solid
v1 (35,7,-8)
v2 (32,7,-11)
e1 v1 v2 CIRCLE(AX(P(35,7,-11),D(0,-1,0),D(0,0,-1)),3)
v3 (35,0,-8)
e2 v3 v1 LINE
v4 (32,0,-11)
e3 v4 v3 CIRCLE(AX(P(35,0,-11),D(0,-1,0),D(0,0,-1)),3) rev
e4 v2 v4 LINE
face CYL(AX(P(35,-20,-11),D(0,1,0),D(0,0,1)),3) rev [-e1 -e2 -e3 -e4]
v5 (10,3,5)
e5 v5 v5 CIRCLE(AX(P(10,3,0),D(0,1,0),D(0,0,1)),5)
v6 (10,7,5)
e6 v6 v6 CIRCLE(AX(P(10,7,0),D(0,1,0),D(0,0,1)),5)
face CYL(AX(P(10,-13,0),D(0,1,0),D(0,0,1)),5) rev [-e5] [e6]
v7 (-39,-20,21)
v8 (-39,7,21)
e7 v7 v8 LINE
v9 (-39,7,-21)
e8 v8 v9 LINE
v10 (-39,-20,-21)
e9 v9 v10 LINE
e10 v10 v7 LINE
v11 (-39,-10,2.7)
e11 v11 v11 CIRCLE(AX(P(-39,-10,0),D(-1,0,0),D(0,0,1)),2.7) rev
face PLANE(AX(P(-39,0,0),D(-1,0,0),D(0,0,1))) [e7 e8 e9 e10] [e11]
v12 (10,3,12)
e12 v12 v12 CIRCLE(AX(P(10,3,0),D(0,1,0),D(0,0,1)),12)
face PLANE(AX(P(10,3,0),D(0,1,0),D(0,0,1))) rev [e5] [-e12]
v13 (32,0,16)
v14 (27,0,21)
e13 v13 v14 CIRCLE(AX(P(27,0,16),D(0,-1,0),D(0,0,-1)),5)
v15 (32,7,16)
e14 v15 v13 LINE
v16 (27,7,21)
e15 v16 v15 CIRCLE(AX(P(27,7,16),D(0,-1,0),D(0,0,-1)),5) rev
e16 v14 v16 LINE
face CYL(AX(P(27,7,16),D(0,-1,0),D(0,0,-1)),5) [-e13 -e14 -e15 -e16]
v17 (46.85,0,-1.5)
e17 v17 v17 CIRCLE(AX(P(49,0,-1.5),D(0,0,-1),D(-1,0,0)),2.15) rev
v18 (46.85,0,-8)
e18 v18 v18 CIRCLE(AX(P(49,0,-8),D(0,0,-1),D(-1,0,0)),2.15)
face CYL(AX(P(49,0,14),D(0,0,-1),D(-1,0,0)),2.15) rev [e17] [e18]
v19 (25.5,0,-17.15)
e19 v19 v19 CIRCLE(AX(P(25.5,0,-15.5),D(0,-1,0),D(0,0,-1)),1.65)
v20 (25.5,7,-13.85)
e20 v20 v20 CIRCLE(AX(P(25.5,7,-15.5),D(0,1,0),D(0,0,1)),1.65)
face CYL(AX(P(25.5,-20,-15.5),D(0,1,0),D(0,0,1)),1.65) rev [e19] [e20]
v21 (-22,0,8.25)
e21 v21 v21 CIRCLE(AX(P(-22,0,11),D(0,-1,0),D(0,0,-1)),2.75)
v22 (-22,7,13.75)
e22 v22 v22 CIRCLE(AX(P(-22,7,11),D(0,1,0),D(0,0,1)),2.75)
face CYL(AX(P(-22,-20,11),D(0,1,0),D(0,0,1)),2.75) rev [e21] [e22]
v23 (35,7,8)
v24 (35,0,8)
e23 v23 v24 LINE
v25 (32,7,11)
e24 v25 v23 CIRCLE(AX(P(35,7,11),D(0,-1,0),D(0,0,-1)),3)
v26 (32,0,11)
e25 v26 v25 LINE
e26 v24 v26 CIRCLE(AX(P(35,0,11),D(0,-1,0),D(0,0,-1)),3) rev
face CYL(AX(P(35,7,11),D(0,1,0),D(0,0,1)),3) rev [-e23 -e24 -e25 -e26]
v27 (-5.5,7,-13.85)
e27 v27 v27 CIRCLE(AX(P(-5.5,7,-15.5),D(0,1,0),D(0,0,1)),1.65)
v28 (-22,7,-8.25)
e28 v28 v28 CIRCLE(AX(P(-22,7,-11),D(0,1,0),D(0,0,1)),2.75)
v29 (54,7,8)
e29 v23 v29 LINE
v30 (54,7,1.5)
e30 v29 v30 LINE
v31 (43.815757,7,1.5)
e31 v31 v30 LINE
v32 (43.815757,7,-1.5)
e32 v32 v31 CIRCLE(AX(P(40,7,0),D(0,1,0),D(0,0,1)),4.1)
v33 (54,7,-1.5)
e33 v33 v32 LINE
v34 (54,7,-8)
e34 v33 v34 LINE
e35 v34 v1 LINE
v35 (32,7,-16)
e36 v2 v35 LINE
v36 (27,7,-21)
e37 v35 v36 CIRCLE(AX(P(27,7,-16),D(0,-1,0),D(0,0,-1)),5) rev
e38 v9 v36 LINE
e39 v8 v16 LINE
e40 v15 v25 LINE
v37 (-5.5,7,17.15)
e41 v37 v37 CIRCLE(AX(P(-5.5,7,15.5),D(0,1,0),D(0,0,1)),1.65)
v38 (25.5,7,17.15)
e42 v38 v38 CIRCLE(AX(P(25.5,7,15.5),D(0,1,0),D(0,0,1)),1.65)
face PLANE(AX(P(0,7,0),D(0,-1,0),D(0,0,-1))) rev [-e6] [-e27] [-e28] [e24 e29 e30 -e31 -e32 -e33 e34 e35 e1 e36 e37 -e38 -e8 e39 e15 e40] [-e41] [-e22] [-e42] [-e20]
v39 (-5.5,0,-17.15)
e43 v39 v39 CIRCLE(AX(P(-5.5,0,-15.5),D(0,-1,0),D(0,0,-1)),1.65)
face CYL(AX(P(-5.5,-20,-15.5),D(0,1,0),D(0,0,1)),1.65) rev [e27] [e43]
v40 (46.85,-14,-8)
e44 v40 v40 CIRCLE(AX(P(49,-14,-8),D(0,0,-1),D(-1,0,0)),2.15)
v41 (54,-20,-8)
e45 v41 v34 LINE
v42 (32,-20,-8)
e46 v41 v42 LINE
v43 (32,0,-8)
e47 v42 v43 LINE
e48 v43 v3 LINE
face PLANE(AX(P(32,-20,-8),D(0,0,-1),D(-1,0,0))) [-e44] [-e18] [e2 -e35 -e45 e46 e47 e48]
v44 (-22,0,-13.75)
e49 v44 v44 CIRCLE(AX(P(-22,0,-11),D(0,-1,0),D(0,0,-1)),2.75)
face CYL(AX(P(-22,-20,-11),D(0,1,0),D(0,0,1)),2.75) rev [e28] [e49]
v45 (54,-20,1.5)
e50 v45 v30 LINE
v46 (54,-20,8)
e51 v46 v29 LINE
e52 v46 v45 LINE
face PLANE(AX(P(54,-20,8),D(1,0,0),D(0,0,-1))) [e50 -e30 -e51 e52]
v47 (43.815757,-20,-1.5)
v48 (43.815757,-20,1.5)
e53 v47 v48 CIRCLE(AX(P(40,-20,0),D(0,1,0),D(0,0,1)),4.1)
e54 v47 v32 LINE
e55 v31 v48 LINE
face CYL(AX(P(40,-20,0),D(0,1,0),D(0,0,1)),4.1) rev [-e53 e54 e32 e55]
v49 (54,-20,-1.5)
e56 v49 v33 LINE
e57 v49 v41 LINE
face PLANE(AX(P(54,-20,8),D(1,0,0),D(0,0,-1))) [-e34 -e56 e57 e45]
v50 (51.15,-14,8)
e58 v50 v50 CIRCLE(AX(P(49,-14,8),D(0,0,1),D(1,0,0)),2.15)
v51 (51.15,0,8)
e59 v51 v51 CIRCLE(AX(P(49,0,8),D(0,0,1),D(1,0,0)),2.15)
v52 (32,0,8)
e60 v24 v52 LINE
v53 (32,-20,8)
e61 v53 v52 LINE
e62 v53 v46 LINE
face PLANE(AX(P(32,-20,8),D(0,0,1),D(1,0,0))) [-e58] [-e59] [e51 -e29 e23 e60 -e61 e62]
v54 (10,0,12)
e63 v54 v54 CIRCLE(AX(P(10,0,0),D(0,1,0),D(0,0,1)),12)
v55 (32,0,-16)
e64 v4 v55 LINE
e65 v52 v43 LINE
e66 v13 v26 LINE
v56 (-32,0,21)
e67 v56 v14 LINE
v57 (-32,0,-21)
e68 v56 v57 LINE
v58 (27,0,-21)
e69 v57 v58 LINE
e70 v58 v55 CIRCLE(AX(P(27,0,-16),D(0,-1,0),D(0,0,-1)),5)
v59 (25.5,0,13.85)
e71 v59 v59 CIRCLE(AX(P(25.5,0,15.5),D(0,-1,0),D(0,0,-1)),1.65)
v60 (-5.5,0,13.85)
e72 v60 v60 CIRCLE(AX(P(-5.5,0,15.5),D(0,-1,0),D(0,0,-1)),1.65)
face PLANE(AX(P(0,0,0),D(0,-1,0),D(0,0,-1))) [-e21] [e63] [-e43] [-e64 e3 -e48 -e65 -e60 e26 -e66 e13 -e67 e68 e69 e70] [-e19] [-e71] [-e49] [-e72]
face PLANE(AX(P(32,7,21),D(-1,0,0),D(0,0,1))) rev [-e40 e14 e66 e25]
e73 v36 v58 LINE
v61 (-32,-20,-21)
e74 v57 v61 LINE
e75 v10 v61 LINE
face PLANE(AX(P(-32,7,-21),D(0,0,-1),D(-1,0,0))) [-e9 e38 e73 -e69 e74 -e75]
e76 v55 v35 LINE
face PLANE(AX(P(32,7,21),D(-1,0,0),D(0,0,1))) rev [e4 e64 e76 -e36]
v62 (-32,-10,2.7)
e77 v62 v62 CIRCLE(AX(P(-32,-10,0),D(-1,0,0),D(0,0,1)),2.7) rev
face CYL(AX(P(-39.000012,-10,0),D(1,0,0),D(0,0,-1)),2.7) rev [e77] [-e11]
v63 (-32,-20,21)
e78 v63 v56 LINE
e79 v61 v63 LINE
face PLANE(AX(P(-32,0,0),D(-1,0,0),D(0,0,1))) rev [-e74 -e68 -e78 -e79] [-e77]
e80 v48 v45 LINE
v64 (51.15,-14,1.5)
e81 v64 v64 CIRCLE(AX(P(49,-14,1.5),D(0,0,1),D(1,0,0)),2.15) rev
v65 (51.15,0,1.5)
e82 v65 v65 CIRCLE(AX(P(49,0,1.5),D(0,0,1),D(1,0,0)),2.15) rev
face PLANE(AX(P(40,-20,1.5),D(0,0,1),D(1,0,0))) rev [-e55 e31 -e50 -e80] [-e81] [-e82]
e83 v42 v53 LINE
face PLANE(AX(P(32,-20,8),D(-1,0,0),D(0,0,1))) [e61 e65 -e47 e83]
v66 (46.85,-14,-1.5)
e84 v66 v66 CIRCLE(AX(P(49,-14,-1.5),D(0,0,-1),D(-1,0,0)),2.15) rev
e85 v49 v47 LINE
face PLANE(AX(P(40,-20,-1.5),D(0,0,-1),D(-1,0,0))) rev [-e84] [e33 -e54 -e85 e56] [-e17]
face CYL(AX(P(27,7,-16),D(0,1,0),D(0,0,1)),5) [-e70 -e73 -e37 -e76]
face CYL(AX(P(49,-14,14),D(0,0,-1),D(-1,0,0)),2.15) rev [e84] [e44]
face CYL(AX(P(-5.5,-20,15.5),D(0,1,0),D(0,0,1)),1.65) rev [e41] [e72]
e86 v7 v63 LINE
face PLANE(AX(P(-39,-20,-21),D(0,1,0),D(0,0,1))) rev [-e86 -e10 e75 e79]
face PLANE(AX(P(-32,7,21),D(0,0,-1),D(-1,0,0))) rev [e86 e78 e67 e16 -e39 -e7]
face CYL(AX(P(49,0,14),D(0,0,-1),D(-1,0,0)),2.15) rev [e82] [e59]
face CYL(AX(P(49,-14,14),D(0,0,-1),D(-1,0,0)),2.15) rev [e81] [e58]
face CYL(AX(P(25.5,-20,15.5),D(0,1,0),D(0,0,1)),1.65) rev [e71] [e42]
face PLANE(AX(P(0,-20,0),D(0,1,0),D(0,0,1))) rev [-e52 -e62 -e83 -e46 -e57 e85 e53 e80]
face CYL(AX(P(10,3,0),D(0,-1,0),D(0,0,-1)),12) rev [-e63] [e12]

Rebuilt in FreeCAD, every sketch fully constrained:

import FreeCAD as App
import Part
import Sketcher
Q = App.Units.Quantity


def edges_at(feature, points):
    """Names of the edges that pass closest to the given points."""
    edges = feature.Shape.Edges
    near = lambda p: min(range(len(edges)), key=lambda i: edges[i].distToShape(Part.Vertex(*p))[0])
    return sorted({f"Edge{near(p) + 1}" for p in points})


def add_polygon(sketch, points):
    """Adds a closed chain of lines whose ends are joined by coincident constraints."""
    first, n = sketch.GeometryCount, len(points)
    for a, b in zip(points, points[1:] + points[:1]):
        sketch.addGeometry(Part.LineSegment(App.Vector(*a, 0), App.Vector(*b, 0)), False)
    for i in range(n):
        sketch.addConstraint(Sketcher.Constraint("Coincident", first + i, 2, first + (i + 1) % n, 1))

doc = App.newDocument("Part")
body = doc.addObject("PartDesign::Body", "Body")

# Sketch on XZ plane
sketch1 = doc.addObject("Sketcher::SketchObject", "Sketch")
body.addObject(sketch1)
sketch1.AttachmentSupport = (doc.XZ_Plane, [""])
sketch1.MapMode = "FlatFace"
add_polygon(sketch1, [(-32, -21), (-32, 21), (32, 21), (32, -21)])  # lines 0-3
sketch1.addConstraint(Sketcher.Constraint("Vertical", 0))
sketch1.addConstraint(Sketcher.Constraint("Horizontal", 1))
sketch1.addConstraint(Sketcher.Constraint("Vertical", 2))
sketch1.addConstraint(Sketcher.Constraint("Horizontal", 3))
sketch1.addConstraint(Sketcher.Constraint("Symmetric", 0, 2, 2, 2, -1, 1))
sketch1.addConstraint(Sketcher.Constraint("DistanceX", 1, 1, 1, 2, Q("64 mm")))
sketch1.addConstraint(Sketcher.Constraint("DistanceY", 0, 1, 0, 2, Q("42 mm")))
pad1 = doc.addObject("PartDesign::Pad", "Pad")
body.addObject(pad1)
pad1.Profile = sketch1
pad1.Length = 7
pad1.Reversed = True

# Sketch on XZ plane
sketch2 = doc.addObject("Sketcher::SketchObject", "Sketch001")
body.addObject(sketch2)
sketch2.AttachmentSupport = (doc.XZ_Plane, [""])
sketch2.MapMode = "FlatFace"
add_polygon(sketch2, [(32, -8), (32, 8), (54, 8), (54, -8)])  # lines 0-3
sketch2.addConstraint(Sketcher.Constraint("Vertical", 0))
sketch2.addConstraint(Sketcher.Constraint("Horizontal", 1))
sketch2.addConstraint(Sketcher.Constraint("Vertical", 2))
sketch2.addConstraint(Sketcher.Constraint("Horizontal", 3))
sketch2.addConstraint(Sketcher.Constraint("DistanceX", 1, 1, 1, 2, Q("22 mm")))
sketch2.addConstraint(Sketcher.Constraint("DistanceY", 0, 1, 0, 2, Q("16 mm")))
sketch2.addConstraint(Sketcher.Constraint("DistanceX", -1, 1, 0, 2, Q("32 mm")))
sketch2.addConstraint(Sketcher.Constraint("DistanceY", -1, 1, 0, 2, Q("8 mm")))
pad2 = doc.addObject("PartDesign::Pad", "Pad001")
body.addObject(pad2)
pad2.Profile = sketch2
pad2.Type = "TwoLengths"
pad2.Length = 7
pad2.Length2 = 20
pad2.Reversed = True

# Sketch on XZ plane
sketch3 = doc.addObject("Sketcher::SketchObject", "Sketch002")
body.addObject(sketch3)
sketch3.AttachmentSupport = (doc.XZ_Plane, [""])
sketch3.MapMode = "FlatFace"
sketch3.addGeometry(Part.Circle(App.Vector(10, 0, 0), App.Vector(0, 0, 1), 12), False)
sketch3.addConstraint(Sketcher.Constraint("PointOnObject", 0, 3, -1))
sketch3.addConstraint(Sketcher.Constraint("Diameter", 0, Q("24 mm")))
sketch3.addConstraint(Sketcher.Constraint("DistanceX", -1, 1, 0, 3, Q("10 mm")))
pocket1 = doc.addObject("PartDesign::Pocket", "Pocket")
body.addObject(pocket1)
pocket1.Profile = sketch3
pocket1.Length = 3

# Sketch on XZ plane
sketch4 = doc.addObject("Sketcher::SketchObject", "Sketch003")
body.addObject(sketch4)
sketch4.AttachmentSupport = (doc.XZ_Plane, [""])
sketch4.MapMode = "FlatFace"
sketch4.AttachmentOffset = App.Placement(App.Vector(0, 0, -7), App.Rotation())
sketch4.addGeometry(Part.Circle(App.Vector(40, 0, 0), App.Vector(0, 0, 1), 4.1), False)
sketch4.addConstraint(Sketcher.Constraint("PointOnObject", 0, 3, -1))
sketch4.addConstraint(Sketcher.Constraint("Diameter", 0, Q("8.2 mm")))
sketch4.addConstraint(Sketcher.Constraint("DistanceX", -1, 1, 0, 3, Q("40 mm")))
pocket2 = doc.addObject("PartDesign::Pocket", "Pocket001")
body.addObject(pocket2)
pocket2.Profile = sketch4
pocket2.Type = "ThroughAll"
pocket2.Reversed = True

# Sketch on XZ plane
sketch5 = doc.addObject("Sketcher::SketchObject", "Sketch004")
body.addObject(sketch5)
sketch5.AttachmentSupport = (doc.XZ_Plane, [""])
sketch5.MapMode = "FlatFace"
sketch5.AttachmentOffset = App.Placement(App.Vector(0, 0, -7), App.Rotation())
sketch5.addGeometry(Part.Circle(App.Vector(-22, -11, 0), App.Vector(0, 0, 1), 2.8), False)
sketch5.addGeometry(Part.Circle(App.Vector(-22, 11, 0), App.Vector(0, 0, 1), 2.8), False)
sketch5.addConstraint(Sketcher.Constraint("Equal", 0, 1))
sketch5.addConstraint(Sketcher.Constraint("Symmetric", 0, 3, 1, 3, -1))
sketch5.addConstraint(Sketcher.Constraint("Diameter", 0, Q("5.5 mm")))
sketch5.addConstraint(Sketcher.Constraint("DistanceX", 0, 3, -1, 1, Q("22 mm")))
sketch5.addConstraint(Sketcher.Constraint("DistanceY", 0, 3, -1, 1, Q("11 mm")))
pocket3 = doc.addObject("PartDesign::Pocket", "Pocket002")
body.addObject(pocket3)
pocket3.Profile = sketch5
pocket3.Type = "ThroughAll"
pocket3.Reversed = True

# Sketch on XZ plane
sketch6 = doc.addObject("Sketcher::SketchObject", "Sketch005")
body.addObject(sketch6)
sketch6.AttachmentSupport = (doc.XZ_Plane, [""])
sketch6.MapMode = "FlatFace"
sketch6.AttachmentOffset = App.Placement(App.Vector(0, 0, -7), App.Rotation())
sketch6.addGeometry(Part.Circle(App.Vector(-5.5, -15.5, 0), App.Vector(0, 0, 1), 1.6), False)
sketch6.addGeometry(Part.Circle(App.Vector(25.5, -15.5, 0), App.Vector(0, 0, 1), 1.6), False)
sketch6.addGeometry(Part.Circle(App.Vector(25.5, 15.5, 0), App.Vector(0, 0, 1), 1.6), False)
sketch6.addGeometry(Part.Circle(App.Vector(-5.5, 15.5, 0), App.Vector(0, 0, 1), 1.6), False)
sketch6.addConstraint(Sketcher.Constraint("Equal", 0, 1))
sketch6.addConstraint(Sketcher.Constraint("Equal", 1, 2))
sketch6.addConstraint(Sketcher.Constraint("Equal", 2, 3))
sketch6.addConstraint(Sketcher.Constraint("Symmetric", 1, 3, 2, 3, -1))
sketch6.addConstraint(Sketcher.Constraint("Symmetric", 0, 3, 3, 3, -1))
sketch6.addConstraint(Sketcher.Constraint("Horizontal", 0, 3, 1, 3))
sketch6.addConstraint(Sketcher.Constraint("Diameter", 0, Q("3.3 mm")))
sketch6.addConstraint(Sketcher.Constraint("DistanceX", 0, 3, 1, 3, Q("31 mm")))
sketch6.addConstraint(Sketcher.Constraint("DistanceY", 1, 3, 2, 3, Q("31 mm")))
sketch6.addConstraint(Sketcher.Constraint("DistanceX", 0, 3, -1, 1, Q("5.5 mm")))
pocket4 = doc.addObject("PartDesign::Pocket", "Pocket003")
body.addObject(pocket4)
pocket4.Profile = sketch6
pocket4.Type = "ThroughAll"
pocket4.Reversed = True

# Sketch on YZ plane
sketch7 = doc.addObject("Sketcher::SketchObject", "Sketch006")
body.addObject(sketch7)
sketch7.AttachmentSupport = (doc.YZ_Plane, [""])
sketch7.MapMode = "FlatFace"
sketch7.AttachmentOffset = App.Placement(App.Vector(0, 0, -32), App.Rotation())
add_polygon(sketch7, [(7, -21), (-20, -21), (-20, 21), (7, 21)])  # lines 0-3
sketch7.addConstraint(Sketcher.Constraint("Horizontal", 0))
sketch7.addConstraint(Sketcher.Constraint("Vertical", 1))
sketch7.addConstraint(Sketcher.Constraint("Horizontal", 2))
sketch7.addConstraint(Sketcher.Constraint("Vertical", 3))
sketch7.addConstraint(Sketcher.Constraint("DistanceX", 0, 2, 0, 1, Q("27 mm")))
sketch7.addConstraint(Sketcher.Constraint("DistanceY", 1, 1, 1, 2, Q("42 mm")))
sketch7.addConstraint(Sketcher.Constraint("DistanceX", 0, 2, -1, 1, Q("20 mm")))
sketch7.addConstraint(Sketcher.Constraint("DistanceY", 0, 2, -1, 1, Q("21 mm")))
pad3 = doc.addObject("PartDesign::Pad", "Pad002")
body.addObject(pad3)
pad3.Profile = sketch7
pad3.Length = 7
pad3.Reversed = True

# Sketch on YZ plane
sketch8 = doc.addObject("Sketcher::SketchObject", "Sketch007")
body.addObject(sketch8)
sketch8.AttachmentSupport = (doc.YZ_Plane, [""])
sketch8.MapMode = "FlatFace"
sketch8.AttachmentOffset = App.Placement(App.Vector(0, 0, -39), App.Rotation())
sketch8.addGeometry(Part.Circle(App.Vector(-10, 0, 0), App.Vector(0, 0, 1), 2.7), False)
sketch8.addConstraint(Sketcher.Constraint("PointOnObject", 0, 3, -1))
sketch8.addConstraint(Sketcher.Constraint("Diameter", 0, Q("5.4 mm")))
sketch8.addConstraint(Sketcher.Constraint("DistanceX", 0, 3, -1, 1, Q("10 mm")))
pocket5 = doc.addObject("PartDesign::Pocket", "Pocket004")
body.addObject(pocket5)
pocket5.Profile = sketch8
pocket5.Type = "TwoLengths"
pocket5.Length = 1
pocket5.Length2 = 13

# Sketch on XZ plane
sketch9 = doc.addObject("Sketcher::SketchObject", "Sketch008")
body.addObject(sketch9)
sketch9.AttachmentSupport = (doc.XZ_Plane, [""])
sketch9.MapMode = "FlatFace"
sketch9.AttachmentOffset = App.Placement(App.Vector(0, 0, -7), App.Rotation())
sketch9.addGeometry(Part.Circle(App.Vector(10, 0, 0), App.Vector(0, 0, 1), 5), False)
sketch9.addConstraint(Sketcher.Constraint("PointOnObject", 0, 3, -1))
sketch9.addConstraint(Sketcher.Constraint("Diameter", 0, Q("10 mm")))
sketch9.addConstraint(Sketcher.Constraint("DistanceX", -1, 1, 0, 3, Q("10 mm")))
pocket6 = doc.addObject("PartDesign::Pocket", "Pocket005")
body.addObject(pocket6)
pocket6.Profile = sketch9
pocket6.Length = 20
pocket6.Reversed = True

# Sketch on XY plane
sketch10 = doc.addObject("Sketcher::SketchObject", "Sketch009")
body.addObject(sketch10)
sketch10.AttachmentSupport = (doc.XY_Plane, [""])
sketch10.MapMode = "FlatFace"
sketch10.AttachmentOffset = App.Placement(App.Vector(0, 0, -8), App.Rotation())
sketch10.addGeometry(Part.Circle(App.Vector(49, 0, 0), App.Vector(0, 0, 1), 2.1), False)
sketch10.addGeometry(Part.Circle(App.Vector(49, -14, 0), App.Vector(0, 0, 1), 2.1), False)
sketch10.addConstraint(Sketcher.Constraint("Equal", 0, 1))
sketch10.addConstraint(Sketcher.Constraint("PointOnObject", 0, 3, -1))
sketch10.addConstraint(Sketcher.Constraint("Vertical", 0, 3, 1, 3))
sketch10.addConstraint(Sketcher.Constraint("Diameter", 0, Q("4.3 mm")))
sketch10.addConstraint(Sketcher.Constraint("DistanceX", -1, 1, 0, 3, Q("49 mm")))
sketch10.addConstraint(Sketcher.Constraint("DistanceY", 1, 3, -1, 1, Q("14 mm")))
pocket7 = doc.addObject("PartDesign::Pocket", "Pocket006")
body.addObject(pocket7)
pocket7.Profile = sketch10
pocket7.Length = 22
pocket7.Reversed = True

# Sketch on XZ plane
sketch11 = doc.addObject("Sketcher::SketchObject", "Sketch010")
body.addObject(sketch11)
sketch11.AttachmentSupport = (doc.XZ_Plane, [""])
sketch11.MapMode = "FlatFace"
sketch11.AttachmentOffset = App.Placement(App.Vector(0, 0, -7), App.Rotation())
add_polygon(sketch11, [(40, -1.5), (40, 1.5), (54, 1.5), (54, -1.5)])  # lines 0-3
sketch11.addConstraint(Sketcher.Constraint("Vertical", 0))
sketch11.addConstraint(Sketcher.Constraint("Horizontal", 1))
sketch11.addConstraint(Sketcher.Constraint("Vertical", 2))
sketch11.addConstraint(Sketcher.Constraint("Horizontal", 3))
sketch11.addConstraint(Sketcher.Constraint("DistanceX", 1, 1, 1, 2, Q("14 mm")))
sketch11.addConstraint(Sketcher.Constraint("DistanceY", 0, 1, 0, 2, Q("3 mm")))
sketch11.addConstraint(Sketcher.Constraint("DistanceX", -1, 1, 0, 2, Q("40 mm")))
sketch11.addConstraint(Sketcher.Constraint("DistanceY", -1, 1, 0, 2, Q("1.5 mm")))
pocket8 = doc.addObject("PartDesign::Pocket", "Pocket007")
body.addObject(pocket8)
pocket8.Profile = sketch11
pocket8.Type = "ThroughAll"
pocket8.Reversed = True
doc.recompute()

fillet = doc.addObject("PartDesign::Fillet", "Fillet")
body.addObject(fillet)
fillet.Base = (pocket8, edges_at(pocket8, [(32, 3.5, -8), (32, 3.5, 8)]))
fillet.Radius = 3
doc.recompute()

fillet2 = doc.addObject("PartDesign::Fillet", "Fillet001")
body.addObject(fillet2)
fillet2.Base = (fillet, edges_at(fillet, [(32, 3.5, 21), (32, 3.5, -21)]))
fillet2.Radius = 5

doc.recompute()
